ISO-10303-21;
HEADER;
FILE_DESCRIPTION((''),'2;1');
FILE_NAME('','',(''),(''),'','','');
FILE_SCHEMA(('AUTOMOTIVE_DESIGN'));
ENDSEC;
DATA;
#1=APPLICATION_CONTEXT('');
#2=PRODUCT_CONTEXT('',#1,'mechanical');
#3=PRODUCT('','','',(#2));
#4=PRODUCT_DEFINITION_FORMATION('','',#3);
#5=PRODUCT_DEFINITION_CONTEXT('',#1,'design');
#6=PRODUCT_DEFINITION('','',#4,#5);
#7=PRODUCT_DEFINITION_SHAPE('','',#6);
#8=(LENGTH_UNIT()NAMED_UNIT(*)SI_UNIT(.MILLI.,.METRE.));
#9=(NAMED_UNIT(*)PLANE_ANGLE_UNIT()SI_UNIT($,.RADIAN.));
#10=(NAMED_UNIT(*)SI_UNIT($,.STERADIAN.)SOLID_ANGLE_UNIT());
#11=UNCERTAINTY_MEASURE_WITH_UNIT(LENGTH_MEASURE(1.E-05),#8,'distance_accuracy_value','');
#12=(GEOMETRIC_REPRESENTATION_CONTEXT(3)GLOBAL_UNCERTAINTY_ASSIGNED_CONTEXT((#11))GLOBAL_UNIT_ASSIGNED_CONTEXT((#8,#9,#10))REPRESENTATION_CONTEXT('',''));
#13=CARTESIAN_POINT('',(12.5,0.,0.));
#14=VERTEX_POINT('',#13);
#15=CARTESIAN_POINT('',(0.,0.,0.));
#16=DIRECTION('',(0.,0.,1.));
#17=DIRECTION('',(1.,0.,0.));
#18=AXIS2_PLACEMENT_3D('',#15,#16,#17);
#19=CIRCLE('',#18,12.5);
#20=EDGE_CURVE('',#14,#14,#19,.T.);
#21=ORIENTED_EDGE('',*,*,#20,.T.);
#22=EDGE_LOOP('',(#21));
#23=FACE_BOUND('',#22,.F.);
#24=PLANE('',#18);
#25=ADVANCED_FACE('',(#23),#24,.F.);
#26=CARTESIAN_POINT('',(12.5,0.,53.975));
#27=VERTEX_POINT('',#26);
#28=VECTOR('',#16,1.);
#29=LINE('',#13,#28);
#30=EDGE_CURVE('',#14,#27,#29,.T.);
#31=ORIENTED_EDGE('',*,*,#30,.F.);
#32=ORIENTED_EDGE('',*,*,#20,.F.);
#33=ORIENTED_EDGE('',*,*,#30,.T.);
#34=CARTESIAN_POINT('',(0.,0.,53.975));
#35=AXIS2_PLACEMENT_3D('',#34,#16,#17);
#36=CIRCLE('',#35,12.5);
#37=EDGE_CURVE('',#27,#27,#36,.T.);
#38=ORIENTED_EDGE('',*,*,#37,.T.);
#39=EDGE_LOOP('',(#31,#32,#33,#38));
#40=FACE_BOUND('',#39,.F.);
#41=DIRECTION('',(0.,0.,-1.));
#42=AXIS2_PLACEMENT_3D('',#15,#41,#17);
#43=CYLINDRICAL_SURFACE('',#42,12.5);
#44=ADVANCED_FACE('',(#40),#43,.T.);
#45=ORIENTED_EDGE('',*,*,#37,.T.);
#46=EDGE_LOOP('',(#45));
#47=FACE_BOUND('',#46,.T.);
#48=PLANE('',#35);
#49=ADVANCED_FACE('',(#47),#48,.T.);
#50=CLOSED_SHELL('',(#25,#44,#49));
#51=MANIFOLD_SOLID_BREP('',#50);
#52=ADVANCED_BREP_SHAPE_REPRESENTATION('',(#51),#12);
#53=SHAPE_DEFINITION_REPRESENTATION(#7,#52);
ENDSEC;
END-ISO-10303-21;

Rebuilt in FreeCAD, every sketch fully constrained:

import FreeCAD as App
import Part
import Sketcher
from FreeCAD import Vector

doc = App.newDocument("Part")
body = doc.addObject("PartDesign::Body", "Body")

# Sketch on XY plane
sketch1 = body.newObject("Sketcher::SketchObject", "Sketch")
sketch1.AttachmentSupport = (doc.getObject("XY_Plane"), [""])
sketch1.MapMode = "FlatFace"
sketch1.addGeometry(Part.Circle(Vector(0, 0, 0), Vector(0, 0, 1), 12.5), False)
sketch1.addConstraint(Sketcher.Constraint("Coincident", 0, 3, -1, 1))
sketch1.addConstraint(Sketcher.Constraint("Diameter", 0, 25.0))
pad1 = body.newObject("PartDesign::Pad", "Pad")
pad1.Profile = sketch1
pad1.Length = 53.975

doc.recompute()
